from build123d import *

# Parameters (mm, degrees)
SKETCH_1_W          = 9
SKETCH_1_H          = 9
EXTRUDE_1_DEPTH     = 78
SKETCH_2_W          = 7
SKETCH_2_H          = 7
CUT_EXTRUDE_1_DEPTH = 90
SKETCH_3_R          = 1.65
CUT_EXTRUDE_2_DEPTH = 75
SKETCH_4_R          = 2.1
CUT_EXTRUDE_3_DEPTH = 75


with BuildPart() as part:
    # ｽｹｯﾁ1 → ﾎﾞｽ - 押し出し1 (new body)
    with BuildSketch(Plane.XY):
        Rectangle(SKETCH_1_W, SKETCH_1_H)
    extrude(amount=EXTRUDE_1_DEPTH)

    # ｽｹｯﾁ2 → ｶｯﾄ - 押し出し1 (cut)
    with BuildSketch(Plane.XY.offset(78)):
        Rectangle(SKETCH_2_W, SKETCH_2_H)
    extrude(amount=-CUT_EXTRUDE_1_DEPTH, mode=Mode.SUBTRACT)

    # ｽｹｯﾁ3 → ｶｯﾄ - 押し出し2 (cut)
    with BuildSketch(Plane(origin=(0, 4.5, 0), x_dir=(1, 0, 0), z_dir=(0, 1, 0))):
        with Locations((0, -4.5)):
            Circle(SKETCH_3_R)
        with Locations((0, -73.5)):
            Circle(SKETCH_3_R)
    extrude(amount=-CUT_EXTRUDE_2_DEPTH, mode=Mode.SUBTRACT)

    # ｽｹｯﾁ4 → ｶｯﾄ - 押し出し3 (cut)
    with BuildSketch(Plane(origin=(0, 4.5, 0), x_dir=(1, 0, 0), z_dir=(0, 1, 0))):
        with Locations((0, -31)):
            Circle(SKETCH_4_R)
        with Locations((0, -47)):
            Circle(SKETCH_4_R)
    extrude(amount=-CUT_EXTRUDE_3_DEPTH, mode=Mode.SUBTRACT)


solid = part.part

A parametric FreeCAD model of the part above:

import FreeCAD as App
import Part
import Sketcher
Q = App.Units.Quantity


def add_polygon(sketch, points):
    """Adds a closed chain of lines whose ends are joined by coincident constraints."""
    first, n = sketch.GeometryCount, len(points)
    for a, b in zip(points, points[1:] + points[:1]):
        sketch.addGeometry(Part.LineSegment(App.Vector(*a, 0), App.Vector(*b, 0)), False)
    for i in range(n):
        sketch.addConstraint(Sketcher.Constraint("Coincident", first + i, 2, first + (i + 1) % n, 1))

doc = App.newDocument("Part")
params = doc.addObject("Spreadsheet::Sheet", "Params")
for row, (alias, value) in enumerate([
    ("sketch1_width", "9 mm"),
    ("pad1_length", "78 mm"),
    ("sketch2_width", "7 mm"),
    ("pocket1_length", "90 mm"),
    ("sketch3_diameter", "3.3 mm"),
    ("pocket2_length", "75 mm"),
    ("sketch4_diameter", "4.2 mm"),
    ("pocket3_length", "75 mm"),
], start=1):
    params.set(f"A{row}", alias)
    params.set(f"B{row}", "=" + value)
    params.setAlias(f"B{row}", alias)

body = doc.addObject("PartDesign::Body", "Body")

sketch1 = body.newObject("Sketcher::SketchObject", "Sketch")
sketch1.AttachmentSupport = (doc.getObject("XY_Plane"), [""])
sketch1.MapMode = "FlatFace"
add_polygon(sketch1, [(-4, 4), (-4, -4), (4, -4), (4, 4)])
sketch1.addConstraint(Sketcher.Constraint("Vertical", 0))
sketch1.addConstraint(Sketcher.Constraint("Horizontal", 1))
sketch1.addConstraint(Sketcher.Constraint("Vertical", 2))
sketch1.addConstraint(Sketcher.Constraint("Horizontal", 3))
sketch1.addConstraint(Sketcher.Constraint("Symmetric", 0, 2, 2, 2, -1, 1))
sketch1.addConstraint(Sketcher.Constraint("Equal", 3, 0))
sketch1.addConstraint(Sketcher.Constraint("DistanceX", 1, 1, 1, 2, Q("9 mm")))
sketch1.setExpression("Constraints[10]", "Params.sketch1_width")
pad1 = body.newObject("PartDesign::Pad", "Pad")
pad1.Profile = sketch1
pad1.setExpression("Length", "Params.pad1_length")

sketch2 = body.newObject("Sketcher::SketchObject", "Sketch001")
sketch2.AttachmentSupport = (doc.getObject("XY_Plane"), [""])
sketch2.MapMode = "FlatFace"
sketch2.AttachmentOffset = App.Placement(App.Vector(0, 0, 78), App.Rotation())
add_polygon(sketch2, [(-4, 4), (-4, -4), (4, -4), (4, 4)])
sketch2.addConstraint(Sketcher.Constraint("Vertical", 0))
sketch2.addConstraint(Sketcher.Constraint("Horizontal", 1))
sketch2.addConstraint(Sketcher.Constraint("Vertical", 2))
sketch2.addConstraint(Sketcher.Constraint("Horizontal", 3))
sketch2.addConstraint(Sketcher.Constraint("Symmetric", 0, 2, 2, 2, -1, 1))
sketch2.addConstraint(Sketcher.Constraint("Equal", 3, 0))
sketch2.addConstraint(Sketcher.Constraint("DistanceX", 1, 1, 1, 2, Q("7 mm")))
sketch2.setExpression("Constraints[10]", "Params.sketch2_width")
pocket1 = body.newObject("PartDesign::Pocket", "Pocket")
pocket1.Profile = sketch2
pocket1.setExpression("Length", "Params.pocket1_length")

sketch3 = body.newObject("Sketcher::SketchObject", "Sketch002")
sketch3.AttachmentSupport = (doc.getObject("XZ_Plane"), [""])
sketch3.MapMode = "FlatFace"
sketch3.AttachmentOffset = App.Placement(App.Vector(0, 0, -4.5), App.Rotation())
sketch3.addGeometry(Part.Circle(App.Vector(0, 4.5, 0), App.Vector(0, 0, 1), 1.6), False)
sketch3.addGeometry(Part.Circle(App.Vector(0, 73.5, 0), App.Vector(0, 0, 1), 1.6), False)
sketch3.addConstraint(Sketcher.Constraint("Equal", 0, 1))
sketch3.addConstraint(Sketcher.Constraint("PointOnObject", 0, 3, -2))
sketch3.addConstraint(Sketcher.Constraint("PointOnObject", 1, 3, -2))
sketch3.addConstraint(Sketcher.Constraint("Diameter", 0, Q("3.3 mm")))
sketch3.addConstraint(Sketcher.Constraint("DistanceY", 0, 3, 1, 3, Q("69 mm")))
sketch3.addConstraint(Sketcher.Constraint("DistanceY", -1, 1, 0, 3, Q("4.5 mm")))
sketch3.setExpression("Constraints[3]", "Params.sketch3_diameter")
pocket2 = body.newObject("PartDesign::Pocket", "Pocket001")
pocket2.Profile = sketch3
pocket2.setExpression("Length", "Params.pocket2_length")
pocket2.Reversed = True

sketch4 = body.newObject("Sketcher::SketchObject", "Sketch003")
sketch4.AttachmentSupport = (doc.getObject("XZ_Plane"), [""])
sketch4.MapMode = "FlatFace"
sketch4.AttachmentOffset = App.Placement(App.Vector(0, 0, -4.5), App.Rotation())
sketch4.addGeometry(Part.Circle(App.Vector(0, 31, 0), App.Vector(0, 0, 1), 2.1), False)
sketch4.addGeometry(Part.Circle(App.Vector(0, 47, 0), App.Vector(0, 0, 1), 2.1), False)
sketch4.addConstraint(Sketcher.Constraint("Equal", 0, 1))
sketch4.addConstraint(Sketcher.Constraint("PointOnObject", 0, 3, -2))
sketch4.addConstraint(Sketcher.Constraint("PointOnObject", 1, 3, -2))
sketch4.addConstraint(Sketcher.Constraint("Diameter", 0, Q("4.2 mm")))
sketch4.addConstraint(Sketcher.Constraint("DistanceY", -1, 1, 0, 3, Q("31 mm")))
sketch4.addConstraint(Sketcher.Constraint("DistanceY", -1, 1, 1, 3, Q("47 mm")))
sketch4.setExpression("Constraints[3]", "Params.sketch4_diameter")
pocket3 = body.newObject("PartDesign::Pocket", "Pocket002")
pocket3.Profile = sketch4
pocket3.setExpression("Length", "Params.pocket3_length")
pocket3.Reversed = True

doc.recompute()
